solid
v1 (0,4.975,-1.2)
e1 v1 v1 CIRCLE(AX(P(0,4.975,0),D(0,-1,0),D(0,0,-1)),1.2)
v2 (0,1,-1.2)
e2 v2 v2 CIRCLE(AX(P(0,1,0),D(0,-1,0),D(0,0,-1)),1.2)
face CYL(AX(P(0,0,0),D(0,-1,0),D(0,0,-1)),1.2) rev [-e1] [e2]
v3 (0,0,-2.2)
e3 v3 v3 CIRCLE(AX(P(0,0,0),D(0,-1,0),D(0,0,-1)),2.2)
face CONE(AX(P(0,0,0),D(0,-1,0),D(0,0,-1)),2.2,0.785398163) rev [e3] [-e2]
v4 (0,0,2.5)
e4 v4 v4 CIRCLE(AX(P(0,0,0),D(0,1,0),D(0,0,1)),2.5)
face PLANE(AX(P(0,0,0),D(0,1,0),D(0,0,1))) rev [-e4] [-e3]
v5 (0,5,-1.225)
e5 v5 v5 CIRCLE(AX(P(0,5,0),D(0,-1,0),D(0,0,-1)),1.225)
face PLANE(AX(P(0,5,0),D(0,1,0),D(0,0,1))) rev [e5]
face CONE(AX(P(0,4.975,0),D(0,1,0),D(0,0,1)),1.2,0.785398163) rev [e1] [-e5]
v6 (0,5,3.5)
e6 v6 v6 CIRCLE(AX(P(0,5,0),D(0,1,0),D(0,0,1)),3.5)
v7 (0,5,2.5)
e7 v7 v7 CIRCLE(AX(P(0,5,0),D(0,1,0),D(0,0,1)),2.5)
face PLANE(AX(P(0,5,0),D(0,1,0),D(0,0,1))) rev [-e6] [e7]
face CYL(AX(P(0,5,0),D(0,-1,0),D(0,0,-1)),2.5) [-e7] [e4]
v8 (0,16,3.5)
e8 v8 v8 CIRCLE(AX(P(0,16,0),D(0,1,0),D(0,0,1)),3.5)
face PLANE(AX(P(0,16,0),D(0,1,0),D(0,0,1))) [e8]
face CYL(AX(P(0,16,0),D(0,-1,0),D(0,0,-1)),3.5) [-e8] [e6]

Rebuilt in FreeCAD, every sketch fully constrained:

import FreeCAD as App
import Part
import Sketcher
Q = App.Units.Quantity

doc = App.newDocument("Part")
params = doc.addObject("Spreadsheet::Sheet", "Params")
for row, (alias, value) in enumerate([
    ("sketch1_diameter", "5 mm"),
    ("pad1_length", "5 mm"),
    ("sketch2_width", "5 mm"),
    ("sketch2_height", "2.2 mm"),
    ("groove_angle", "360 deg"),
    ("sketch3_diameter", "7 mm"),
    ("pad2_length", "11 mm"),
], start=1):
    params.set(f"A{row}", alias)
    params.set(f"B{row}", "=" + value)
    params.setAlias(f"B{row}", alias)

body = doc.addObject("PartDesign::Body", "Body")

sketch1 = body.newObject("Sketcher::SketchObject", "Sketch")
sketch1.AttachmentSupport = (doc.getObject("XZ_Plane"), [""])
sketch1.MapMode = "FlatFace"
sketch1.addGeometry(Part.Circle(App.Vector(0, 0, 0), App.Vector(0, 0, 1), 2.5), False)
sketch1.addConstraint([
    Sketcher.Constraint("Coincident", 0, 3, -1, 1),
    Sketcher.Constraint("Diameter", 0, Q("5 mm")),
])
sketch1.setExpression("Constraints[1]", "Params.sketch1_diameter")
pad1 = body.newObject("PartDesign::Pad", "Pad")
pad1.Profile = sketch1
pad1.setExpression("Length", "Params.pad1_length")
pad1.Reversed = True

sketch2 = body.newObject("Sketcher::SketchObject", "Sketch001")
sketch2.AttachmentSupport = (doc.getObject("YZ_Plane"), [""])
sketch2.MapMode = "FlatFace"
sketch2.addGeometry([
    Part.LineSegment(App.Vector(5, 0, 0), App.Vector(0, 0, 0)),
    Part.LineSegment(App.Vector(0, 0, 0), App.Vector(0, -2.2, 0)),
    Part.LineSegment(App.Vector(0, -2.2, 0), App.Vector(1, -1.2, 0)),
    Part.LineSegment(App.Vector(1, -1.2, 0), App.Vector(4.975, -1.2, 0)),
    Part.LineSegment(App.Vector(4.975, -1.2, 0), App.Vector(5, -1.225, 0)),
    Part.LineSegment(App.Vector(5, -1.225, 0), App.Vector(5, 0, 0)),
], False)
sketch2.addConstraint([
    Sketcher.Constraint("Coincident", 0, 2, 1, 1),
    Sketcher.Constraint("Coincident", 1, 2, 2, 1),
    Sketcher.Constraint("Coincident", 2, 2, 3, 1),
    Sketcher.Constraint("Coincident", 3, 2, 4, 1),
    Sketcher.Constraint("Coincident", 4, 2, 5, 1),
    Sketcher.Constraint("Coincident", 5, 2, 0, 1),
    Sketcher.Constraint("Horizontal", 0),
    Sketcher.Constraint("Vertical", 1),
    Sketcher.Constraint("Horizontal", 3),
    Sketcher.Constraint("Vertical", 5),
    Sketcher.Constraint("Coincident", 0, 2, -1, 1),
    Sketcher.Constraint("Perpendicular", 2, 4),
    Sketcher.Constraint("DistanceX", 0, 2, 0, 1, Q("5 mm")),
    Sketcher.Constraint("Angle", 2, Q("45 deg")),
    Sketcher.Constraint("DistanceY", 1, 2, 1, 1, Q("2.2 mm")),
    Sketcher.Constraint("DistanceX", -1, 1, 2, 2, Q("1 mm")),
    Sketcher.Constraint("DistanceX", 3, 1, 3, 2, Q("3.975 mm")),
])
sketch2.setExpression("Constraints[12]", "Params.sketch2_width")
sketch2.setExpression("Constraints[14]", "Params.sketch2_height")
groove = body.newObject("PartDesign::Groove", "Groove")
groove.Profile = sketch2
groove.ReferenceAxis = (sketch2, ["H_Axis"])
groove.setExpression("Angle", "Params.groove_angle")

sketch3 = body.newObject("Sketcher::SketchObject", "Sketch002")
sketch3.AttachmentSupport = (doc.getObject("XZ_Plane"), [""])
sketch3.MapMode = "FlatFace"
sketch3.AttachmentOffset = App.Placement(App.Vector(0, 0, -5), App.Rotation())
sketch3.addGeometry(Part.Circle(App.Vector(0, 0, 0), App.Vector(0, 0, 1), 3.5), False)
sketch3.addConstraint([
    Sketcher.Constraint("Coincident", 0, 3, -1, 1),
    Sketcher.Constraint("Diameter", 0, Q("7 mm")),
])
sketch3.setExpression("Constraints[1]", "Params.sketch3_diameter")
pad2 = body.newObject("PartDesign::Pad", "Pad001")
pad2.Profile = sketch3
pad2.setExpression("Length", "Params.pad2_length")
pad2.Reversed = True

doc.recompute()
